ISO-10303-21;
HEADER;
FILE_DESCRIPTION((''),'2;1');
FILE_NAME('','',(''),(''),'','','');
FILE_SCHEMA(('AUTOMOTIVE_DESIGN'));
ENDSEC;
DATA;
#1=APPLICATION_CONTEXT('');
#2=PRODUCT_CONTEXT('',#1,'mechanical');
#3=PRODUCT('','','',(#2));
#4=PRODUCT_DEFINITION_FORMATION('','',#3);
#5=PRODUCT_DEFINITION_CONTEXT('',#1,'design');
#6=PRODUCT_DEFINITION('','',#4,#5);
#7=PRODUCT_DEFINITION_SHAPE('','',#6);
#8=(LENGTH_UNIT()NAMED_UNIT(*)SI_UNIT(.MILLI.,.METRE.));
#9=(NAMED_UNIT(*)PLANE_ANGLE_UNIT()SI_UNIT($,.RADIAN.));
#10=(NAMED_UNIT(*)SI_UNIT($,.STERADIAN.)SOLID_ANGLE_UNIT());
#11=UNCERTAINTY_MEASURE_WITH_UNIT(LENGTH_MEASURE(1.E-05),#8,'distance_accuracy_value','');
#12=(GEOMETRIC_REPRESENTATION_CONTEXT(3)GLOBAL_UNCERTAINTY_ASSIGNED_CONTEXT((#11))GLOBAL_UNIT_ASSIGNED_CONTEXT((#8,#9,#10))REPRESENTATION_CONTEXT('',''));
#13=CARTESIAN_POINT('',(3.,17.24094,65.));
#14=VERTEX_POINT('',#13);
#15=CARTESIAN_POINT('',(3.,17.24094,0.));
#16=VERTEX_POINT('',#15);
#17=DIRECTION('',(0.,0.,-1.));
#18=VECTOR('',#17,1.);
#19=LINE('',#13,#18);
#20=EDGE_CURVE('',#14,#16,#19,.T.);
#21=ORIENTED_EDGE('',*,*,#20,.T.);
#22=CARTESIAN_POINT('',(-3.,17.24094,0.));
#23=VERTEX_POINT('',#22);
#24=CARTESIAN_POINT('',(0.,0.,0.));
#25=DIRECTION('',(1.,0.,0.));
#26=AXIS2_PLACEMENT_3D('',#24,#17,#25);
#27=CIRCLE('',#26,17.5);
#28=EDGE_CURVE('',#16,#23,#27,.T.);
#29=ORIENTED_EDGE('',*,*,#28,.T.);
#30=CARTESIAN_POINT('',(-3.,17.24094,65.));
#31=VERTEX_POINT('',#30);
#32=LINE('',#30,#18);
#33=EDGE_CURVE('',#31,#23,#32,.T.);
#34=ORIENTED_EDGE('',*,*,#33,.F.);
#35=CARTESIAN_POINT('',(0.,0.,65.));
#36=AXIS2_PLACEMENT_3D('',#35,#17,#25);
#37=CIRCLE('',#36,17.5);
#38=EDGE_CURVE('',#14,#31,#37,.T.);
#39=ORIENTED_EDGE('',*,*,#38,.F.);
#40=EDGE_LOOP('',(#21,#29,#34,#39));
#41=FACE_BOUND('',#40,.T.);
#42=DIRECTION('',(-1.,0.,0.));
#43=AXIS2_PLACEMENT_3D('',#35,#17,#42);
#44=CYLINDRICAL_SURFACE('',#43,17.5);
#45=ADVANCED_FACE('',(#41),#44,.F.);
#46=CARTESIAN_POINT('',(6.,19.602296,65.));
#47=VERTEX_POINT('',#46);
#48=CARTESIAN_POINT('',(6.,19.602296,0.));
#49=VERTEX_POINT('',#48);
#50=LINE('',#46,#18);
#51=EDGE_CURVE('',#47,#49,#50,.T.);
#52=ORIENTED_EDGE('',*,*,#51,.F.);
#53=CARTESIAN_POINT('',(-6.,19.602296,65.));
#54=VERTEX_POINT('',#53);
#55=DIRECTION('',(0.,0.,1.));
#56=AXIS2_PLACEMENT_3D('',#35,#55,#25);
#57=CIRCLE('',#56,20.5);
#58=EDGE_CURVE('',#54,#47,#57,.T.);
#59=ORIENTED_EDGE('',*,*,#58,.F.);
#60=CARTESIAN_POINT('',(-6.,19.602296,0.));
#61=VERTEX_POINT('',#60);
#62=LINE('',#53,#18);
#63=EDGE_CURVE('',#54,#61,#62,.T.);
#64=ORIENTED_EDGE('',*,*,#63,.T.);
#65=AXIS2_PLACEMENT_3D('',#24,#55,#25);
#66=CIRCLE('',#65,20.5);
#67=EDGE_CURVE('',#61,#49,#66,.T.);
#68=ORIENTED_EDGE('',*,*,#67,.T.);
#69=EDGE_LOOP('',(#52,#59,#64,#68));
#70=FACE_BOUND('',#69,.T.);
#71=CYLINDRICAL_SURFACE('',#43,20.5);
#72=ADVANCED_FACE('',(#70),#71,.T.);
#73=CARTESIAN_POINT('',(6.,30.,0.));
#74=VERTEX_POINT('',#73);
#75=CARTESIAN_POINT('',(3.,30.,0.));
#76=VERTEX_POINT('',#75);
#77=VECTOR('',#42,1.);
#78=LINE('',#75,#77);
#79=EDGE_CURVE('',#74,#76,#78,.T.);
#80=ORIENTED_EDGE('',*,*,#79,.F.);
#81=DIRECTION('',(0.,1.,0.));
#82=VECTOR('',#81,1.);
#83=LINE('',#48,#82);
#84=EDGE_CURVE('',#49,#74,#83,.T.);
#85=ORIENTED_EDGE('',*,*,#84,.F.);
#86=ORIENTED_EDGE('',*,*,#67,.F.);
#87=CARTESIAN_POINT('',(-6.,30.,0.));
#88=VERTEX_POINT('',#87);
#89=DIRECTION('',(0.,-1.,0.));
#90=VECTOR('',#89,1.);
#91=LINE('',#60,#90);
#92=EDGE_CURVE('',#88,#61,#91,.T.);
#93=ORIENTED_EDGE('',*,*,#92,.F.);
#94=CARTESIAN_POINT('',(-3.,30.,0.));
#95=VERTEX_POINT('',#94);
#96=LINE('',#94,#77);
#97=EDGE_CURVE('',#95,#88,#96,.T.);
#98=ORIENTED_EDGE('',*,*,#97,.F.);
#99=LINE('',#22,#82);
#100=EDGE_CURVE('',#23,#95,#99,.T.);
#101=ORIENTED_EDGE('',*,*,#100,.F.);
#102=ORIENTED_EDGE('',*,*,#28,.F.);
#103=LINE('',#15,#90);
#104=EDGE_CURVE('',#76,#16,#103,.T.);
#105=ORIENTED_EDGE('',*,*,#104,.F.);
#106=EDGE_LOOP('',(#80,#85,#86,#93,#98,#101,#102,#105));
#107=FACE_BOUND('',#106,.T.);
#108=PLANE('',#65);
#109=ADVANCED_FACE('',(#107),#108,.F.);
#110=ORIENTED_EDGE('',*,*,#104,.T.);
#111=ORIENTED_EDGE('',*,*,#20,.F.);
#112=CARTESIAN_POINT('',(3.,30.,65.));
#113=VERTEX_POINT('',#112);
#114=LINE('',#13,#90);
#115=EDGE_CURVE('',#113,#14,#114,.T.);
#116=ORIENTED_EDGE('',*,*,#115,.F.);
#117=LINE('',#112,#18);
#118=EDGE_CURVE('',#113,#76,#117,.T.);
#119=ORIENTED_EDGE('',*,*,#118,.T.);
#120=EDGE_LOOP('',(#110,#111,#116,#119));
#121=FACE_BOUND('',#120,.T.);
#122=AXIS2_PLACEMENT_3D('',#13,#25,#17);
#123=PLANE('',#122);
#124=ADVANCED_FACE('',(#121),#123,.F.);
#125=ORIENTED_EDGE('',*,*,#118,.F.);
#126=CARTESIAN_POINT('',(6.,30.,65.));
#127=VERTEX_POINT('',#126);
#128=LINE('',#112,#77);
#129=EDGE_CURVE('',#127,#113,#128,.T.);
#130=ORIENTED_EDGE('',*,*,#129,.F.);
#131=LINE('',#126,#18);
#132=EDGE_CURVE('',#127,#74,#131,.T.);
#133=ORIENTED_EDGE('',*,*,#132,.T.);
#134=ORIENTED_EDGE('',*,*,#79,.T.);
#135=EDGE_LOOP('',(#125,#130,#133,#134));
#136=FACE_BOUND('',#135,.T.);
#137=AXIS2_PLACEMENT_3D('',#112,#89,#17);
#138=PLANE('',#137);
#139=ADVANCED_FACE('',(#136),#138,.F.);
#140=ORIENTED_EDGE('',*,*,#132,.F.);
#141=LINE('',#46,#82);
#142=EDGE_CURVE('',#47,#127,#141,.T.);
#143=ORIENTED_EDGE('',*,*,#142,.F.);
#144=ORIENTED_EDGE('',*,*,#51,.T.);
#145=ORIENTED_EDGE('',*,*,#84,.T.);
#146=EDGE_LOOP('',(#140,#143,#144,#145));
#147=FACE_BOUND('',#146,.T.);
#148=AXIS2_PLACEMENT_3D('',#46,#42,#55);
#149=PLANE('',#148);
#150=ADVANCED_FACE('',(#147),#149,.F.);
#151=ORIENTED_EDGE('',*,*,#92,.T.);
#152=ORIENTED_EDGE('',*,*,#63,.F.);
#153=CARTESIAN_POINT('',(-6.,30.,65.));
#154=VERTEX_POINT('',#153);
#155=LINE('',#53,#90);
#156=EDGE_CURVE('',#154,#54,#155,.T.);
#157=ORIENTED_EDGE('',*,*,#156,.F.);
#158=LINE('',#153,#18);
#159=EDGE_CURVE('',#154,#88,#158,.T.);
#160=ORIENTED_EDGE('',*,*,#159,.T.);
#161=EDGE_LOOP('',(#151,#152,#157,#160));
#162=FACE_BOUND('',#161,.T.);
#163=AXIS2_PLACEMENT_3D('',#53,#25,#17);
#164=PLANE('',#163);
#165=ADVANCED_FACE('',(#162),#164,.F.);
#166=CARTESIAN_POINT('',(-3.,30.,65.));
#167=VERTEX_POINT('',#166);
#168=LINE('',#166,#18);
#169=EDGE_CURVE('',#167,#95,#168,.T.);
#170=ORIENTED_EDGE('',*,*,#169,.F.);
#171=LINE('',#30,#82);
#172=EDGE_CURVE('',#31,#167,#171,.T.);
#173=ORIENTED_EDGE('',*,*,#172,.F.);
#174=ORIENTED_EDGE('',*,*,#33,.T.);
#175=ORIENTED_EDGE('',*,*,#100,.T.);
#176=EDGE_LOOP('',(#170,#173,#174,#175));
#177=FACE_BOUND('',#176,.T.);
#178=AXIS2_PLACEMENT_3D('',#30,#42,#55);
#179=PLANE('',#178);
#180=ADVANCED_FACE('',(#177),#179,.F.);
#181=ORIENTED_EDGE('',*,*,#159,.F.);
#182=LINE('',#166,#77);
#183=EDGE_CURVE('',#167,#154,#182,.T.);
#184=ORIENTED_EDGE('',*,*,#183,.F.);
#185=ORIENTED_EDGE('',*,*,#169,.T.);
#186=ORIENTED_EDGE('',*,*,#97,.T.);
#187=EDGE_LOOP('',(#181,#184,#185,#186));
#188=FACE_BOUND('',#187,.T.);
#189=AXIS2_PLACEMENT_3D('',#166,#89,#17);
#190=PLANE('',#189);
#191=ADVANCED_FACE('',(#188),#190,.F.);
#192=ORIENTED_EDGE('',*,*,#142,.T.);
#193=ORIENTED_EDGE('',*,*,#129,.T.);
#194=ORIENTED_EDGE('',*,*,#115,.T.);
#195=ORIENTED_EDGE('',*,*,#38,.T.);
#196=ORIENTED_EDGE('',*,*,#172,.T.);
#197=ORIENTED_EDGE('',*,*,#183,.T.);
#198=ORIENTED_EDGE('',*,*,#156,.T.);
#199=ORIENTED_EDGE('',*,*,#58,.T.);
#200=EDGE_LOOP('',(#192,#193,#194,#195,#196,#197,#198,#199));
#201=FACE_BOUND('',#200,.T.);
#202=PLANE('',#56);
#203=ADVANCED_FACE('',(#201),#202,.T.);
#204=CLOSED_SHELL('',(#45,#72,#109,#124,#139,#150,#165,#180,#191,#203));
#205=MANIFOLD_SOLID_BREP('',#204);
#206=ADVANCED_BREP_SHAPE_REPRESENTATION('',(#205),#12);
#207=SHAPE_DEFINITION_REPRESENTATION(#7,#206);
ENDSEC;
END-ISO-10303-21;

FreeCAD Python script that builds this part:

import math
import FreeCAD as App
import Part
import Sketcher
from FreeCAD import Vector
Q = App.Units.Quantity

doc = App.newDocument("Part")
body = doc.addObject("PartDesign::Body", "Body")

sketch1 = body.newObject("Sketcher::SketchObject", "Sketch")
sketch1.AttachmentSupport = (doc.getObject("XY_Plane"), [""])
sketch1.MapMode = "FlatFace"
sketch1.addGeometry([
    Part.LineSegment(Vector(3, 30, 0), Vector(3, 17.2, 0)),
    Part.ArcOfCircle(Part.Circle(Vector(0, 0, 0), Vector(0, 0, 1), 17.5), math.radians(100), math.radians(440)),
    Part.LineSegment(Vector(-3, 17.2, 0), Vector(-3, 30, 0)),
    Part.LineSegment(Vector(-3, 30, 0), Vector(-6, 30, 0)),
    Part.LineSegment(Vector(-6, 30, 0), Vector(-6, 19.6, 0)),
    Part.ArcOfCircle(Part.Circle(Vector(0, 0, 0), Vector(0, 0, 1), 20.5), math.radians(107), math.radians(433)),
    Part.LineSegment(Vector(6, 19.6, 0), Vector(6, 30, 0)),
    Part.LineSegment(Vector(6, 30, 0), Vector(3, 30, 0)),
], False)
sketch1.addConstraint([
    Sketcher.Constraint("Coincident", 0, 2, 1, 2),
    Sketcher.Constraint("Coincident", 1, 1, 2, 1),
    Sketcher.Constraint("Coincident", 2, 2, 3, 1),
    Sketcher.Constraint("Coincident", 3, 2, 4, 1),
    Sketcher.Constraint("Coincident", 4, 2, 5, 1),
    Sketcher.Constraint("Coincident", 5, 2, 6, 1),
    Sketcher.Constraint("Coincident", 6, 2, 7, 1),
    Sketcher.Constraint("Coincident", 7, 2, 0, 1),
    Sketcher.Constraint("Vertical", 0),
    Sketcher.Constraint("Vertical", 2),
    Sketcher.Constraint("Horizontal", 3),
    Sketcher.Constraint("Vertical", 4),
    Sketcher.Constraint("Vertical", 6),
    Sketcher.Constraint("Horizontal", 7),
    Sketcher.Constraint("Coincident", 1, 3, -1, 1),
    Sketcher.Constraint("Coincident", 5, 3, -1, 1),
    Sketcher.Constraint("Symmetric", 3, 2, 6, 2, -2),
    Sketcher.Constraint("Horizontal", 0, 2, 1, 1),
    Sketcher.Constraint("Radius", 1, Q("17.5 mm")),
    Sketcher.Constraint("Radius", 5, Q("20.5 mm")),
    Sketcher.Constraint("DistanceX", 3, 2, 3, 1, Q("3 mm")),
    Sketcher.Constraint("DistanceX", -1, 1, 0, 2, Q("3 mm")),
    Sketcher.Constraint("DistanceY", -1, 1, 2, 2, Q("30 mm")),
])
pad1 = body.newObject("PartDesign::Pad", "Pad")
pad1.Profile = sketch1
pad1.Length = 65

doc.recompute()
